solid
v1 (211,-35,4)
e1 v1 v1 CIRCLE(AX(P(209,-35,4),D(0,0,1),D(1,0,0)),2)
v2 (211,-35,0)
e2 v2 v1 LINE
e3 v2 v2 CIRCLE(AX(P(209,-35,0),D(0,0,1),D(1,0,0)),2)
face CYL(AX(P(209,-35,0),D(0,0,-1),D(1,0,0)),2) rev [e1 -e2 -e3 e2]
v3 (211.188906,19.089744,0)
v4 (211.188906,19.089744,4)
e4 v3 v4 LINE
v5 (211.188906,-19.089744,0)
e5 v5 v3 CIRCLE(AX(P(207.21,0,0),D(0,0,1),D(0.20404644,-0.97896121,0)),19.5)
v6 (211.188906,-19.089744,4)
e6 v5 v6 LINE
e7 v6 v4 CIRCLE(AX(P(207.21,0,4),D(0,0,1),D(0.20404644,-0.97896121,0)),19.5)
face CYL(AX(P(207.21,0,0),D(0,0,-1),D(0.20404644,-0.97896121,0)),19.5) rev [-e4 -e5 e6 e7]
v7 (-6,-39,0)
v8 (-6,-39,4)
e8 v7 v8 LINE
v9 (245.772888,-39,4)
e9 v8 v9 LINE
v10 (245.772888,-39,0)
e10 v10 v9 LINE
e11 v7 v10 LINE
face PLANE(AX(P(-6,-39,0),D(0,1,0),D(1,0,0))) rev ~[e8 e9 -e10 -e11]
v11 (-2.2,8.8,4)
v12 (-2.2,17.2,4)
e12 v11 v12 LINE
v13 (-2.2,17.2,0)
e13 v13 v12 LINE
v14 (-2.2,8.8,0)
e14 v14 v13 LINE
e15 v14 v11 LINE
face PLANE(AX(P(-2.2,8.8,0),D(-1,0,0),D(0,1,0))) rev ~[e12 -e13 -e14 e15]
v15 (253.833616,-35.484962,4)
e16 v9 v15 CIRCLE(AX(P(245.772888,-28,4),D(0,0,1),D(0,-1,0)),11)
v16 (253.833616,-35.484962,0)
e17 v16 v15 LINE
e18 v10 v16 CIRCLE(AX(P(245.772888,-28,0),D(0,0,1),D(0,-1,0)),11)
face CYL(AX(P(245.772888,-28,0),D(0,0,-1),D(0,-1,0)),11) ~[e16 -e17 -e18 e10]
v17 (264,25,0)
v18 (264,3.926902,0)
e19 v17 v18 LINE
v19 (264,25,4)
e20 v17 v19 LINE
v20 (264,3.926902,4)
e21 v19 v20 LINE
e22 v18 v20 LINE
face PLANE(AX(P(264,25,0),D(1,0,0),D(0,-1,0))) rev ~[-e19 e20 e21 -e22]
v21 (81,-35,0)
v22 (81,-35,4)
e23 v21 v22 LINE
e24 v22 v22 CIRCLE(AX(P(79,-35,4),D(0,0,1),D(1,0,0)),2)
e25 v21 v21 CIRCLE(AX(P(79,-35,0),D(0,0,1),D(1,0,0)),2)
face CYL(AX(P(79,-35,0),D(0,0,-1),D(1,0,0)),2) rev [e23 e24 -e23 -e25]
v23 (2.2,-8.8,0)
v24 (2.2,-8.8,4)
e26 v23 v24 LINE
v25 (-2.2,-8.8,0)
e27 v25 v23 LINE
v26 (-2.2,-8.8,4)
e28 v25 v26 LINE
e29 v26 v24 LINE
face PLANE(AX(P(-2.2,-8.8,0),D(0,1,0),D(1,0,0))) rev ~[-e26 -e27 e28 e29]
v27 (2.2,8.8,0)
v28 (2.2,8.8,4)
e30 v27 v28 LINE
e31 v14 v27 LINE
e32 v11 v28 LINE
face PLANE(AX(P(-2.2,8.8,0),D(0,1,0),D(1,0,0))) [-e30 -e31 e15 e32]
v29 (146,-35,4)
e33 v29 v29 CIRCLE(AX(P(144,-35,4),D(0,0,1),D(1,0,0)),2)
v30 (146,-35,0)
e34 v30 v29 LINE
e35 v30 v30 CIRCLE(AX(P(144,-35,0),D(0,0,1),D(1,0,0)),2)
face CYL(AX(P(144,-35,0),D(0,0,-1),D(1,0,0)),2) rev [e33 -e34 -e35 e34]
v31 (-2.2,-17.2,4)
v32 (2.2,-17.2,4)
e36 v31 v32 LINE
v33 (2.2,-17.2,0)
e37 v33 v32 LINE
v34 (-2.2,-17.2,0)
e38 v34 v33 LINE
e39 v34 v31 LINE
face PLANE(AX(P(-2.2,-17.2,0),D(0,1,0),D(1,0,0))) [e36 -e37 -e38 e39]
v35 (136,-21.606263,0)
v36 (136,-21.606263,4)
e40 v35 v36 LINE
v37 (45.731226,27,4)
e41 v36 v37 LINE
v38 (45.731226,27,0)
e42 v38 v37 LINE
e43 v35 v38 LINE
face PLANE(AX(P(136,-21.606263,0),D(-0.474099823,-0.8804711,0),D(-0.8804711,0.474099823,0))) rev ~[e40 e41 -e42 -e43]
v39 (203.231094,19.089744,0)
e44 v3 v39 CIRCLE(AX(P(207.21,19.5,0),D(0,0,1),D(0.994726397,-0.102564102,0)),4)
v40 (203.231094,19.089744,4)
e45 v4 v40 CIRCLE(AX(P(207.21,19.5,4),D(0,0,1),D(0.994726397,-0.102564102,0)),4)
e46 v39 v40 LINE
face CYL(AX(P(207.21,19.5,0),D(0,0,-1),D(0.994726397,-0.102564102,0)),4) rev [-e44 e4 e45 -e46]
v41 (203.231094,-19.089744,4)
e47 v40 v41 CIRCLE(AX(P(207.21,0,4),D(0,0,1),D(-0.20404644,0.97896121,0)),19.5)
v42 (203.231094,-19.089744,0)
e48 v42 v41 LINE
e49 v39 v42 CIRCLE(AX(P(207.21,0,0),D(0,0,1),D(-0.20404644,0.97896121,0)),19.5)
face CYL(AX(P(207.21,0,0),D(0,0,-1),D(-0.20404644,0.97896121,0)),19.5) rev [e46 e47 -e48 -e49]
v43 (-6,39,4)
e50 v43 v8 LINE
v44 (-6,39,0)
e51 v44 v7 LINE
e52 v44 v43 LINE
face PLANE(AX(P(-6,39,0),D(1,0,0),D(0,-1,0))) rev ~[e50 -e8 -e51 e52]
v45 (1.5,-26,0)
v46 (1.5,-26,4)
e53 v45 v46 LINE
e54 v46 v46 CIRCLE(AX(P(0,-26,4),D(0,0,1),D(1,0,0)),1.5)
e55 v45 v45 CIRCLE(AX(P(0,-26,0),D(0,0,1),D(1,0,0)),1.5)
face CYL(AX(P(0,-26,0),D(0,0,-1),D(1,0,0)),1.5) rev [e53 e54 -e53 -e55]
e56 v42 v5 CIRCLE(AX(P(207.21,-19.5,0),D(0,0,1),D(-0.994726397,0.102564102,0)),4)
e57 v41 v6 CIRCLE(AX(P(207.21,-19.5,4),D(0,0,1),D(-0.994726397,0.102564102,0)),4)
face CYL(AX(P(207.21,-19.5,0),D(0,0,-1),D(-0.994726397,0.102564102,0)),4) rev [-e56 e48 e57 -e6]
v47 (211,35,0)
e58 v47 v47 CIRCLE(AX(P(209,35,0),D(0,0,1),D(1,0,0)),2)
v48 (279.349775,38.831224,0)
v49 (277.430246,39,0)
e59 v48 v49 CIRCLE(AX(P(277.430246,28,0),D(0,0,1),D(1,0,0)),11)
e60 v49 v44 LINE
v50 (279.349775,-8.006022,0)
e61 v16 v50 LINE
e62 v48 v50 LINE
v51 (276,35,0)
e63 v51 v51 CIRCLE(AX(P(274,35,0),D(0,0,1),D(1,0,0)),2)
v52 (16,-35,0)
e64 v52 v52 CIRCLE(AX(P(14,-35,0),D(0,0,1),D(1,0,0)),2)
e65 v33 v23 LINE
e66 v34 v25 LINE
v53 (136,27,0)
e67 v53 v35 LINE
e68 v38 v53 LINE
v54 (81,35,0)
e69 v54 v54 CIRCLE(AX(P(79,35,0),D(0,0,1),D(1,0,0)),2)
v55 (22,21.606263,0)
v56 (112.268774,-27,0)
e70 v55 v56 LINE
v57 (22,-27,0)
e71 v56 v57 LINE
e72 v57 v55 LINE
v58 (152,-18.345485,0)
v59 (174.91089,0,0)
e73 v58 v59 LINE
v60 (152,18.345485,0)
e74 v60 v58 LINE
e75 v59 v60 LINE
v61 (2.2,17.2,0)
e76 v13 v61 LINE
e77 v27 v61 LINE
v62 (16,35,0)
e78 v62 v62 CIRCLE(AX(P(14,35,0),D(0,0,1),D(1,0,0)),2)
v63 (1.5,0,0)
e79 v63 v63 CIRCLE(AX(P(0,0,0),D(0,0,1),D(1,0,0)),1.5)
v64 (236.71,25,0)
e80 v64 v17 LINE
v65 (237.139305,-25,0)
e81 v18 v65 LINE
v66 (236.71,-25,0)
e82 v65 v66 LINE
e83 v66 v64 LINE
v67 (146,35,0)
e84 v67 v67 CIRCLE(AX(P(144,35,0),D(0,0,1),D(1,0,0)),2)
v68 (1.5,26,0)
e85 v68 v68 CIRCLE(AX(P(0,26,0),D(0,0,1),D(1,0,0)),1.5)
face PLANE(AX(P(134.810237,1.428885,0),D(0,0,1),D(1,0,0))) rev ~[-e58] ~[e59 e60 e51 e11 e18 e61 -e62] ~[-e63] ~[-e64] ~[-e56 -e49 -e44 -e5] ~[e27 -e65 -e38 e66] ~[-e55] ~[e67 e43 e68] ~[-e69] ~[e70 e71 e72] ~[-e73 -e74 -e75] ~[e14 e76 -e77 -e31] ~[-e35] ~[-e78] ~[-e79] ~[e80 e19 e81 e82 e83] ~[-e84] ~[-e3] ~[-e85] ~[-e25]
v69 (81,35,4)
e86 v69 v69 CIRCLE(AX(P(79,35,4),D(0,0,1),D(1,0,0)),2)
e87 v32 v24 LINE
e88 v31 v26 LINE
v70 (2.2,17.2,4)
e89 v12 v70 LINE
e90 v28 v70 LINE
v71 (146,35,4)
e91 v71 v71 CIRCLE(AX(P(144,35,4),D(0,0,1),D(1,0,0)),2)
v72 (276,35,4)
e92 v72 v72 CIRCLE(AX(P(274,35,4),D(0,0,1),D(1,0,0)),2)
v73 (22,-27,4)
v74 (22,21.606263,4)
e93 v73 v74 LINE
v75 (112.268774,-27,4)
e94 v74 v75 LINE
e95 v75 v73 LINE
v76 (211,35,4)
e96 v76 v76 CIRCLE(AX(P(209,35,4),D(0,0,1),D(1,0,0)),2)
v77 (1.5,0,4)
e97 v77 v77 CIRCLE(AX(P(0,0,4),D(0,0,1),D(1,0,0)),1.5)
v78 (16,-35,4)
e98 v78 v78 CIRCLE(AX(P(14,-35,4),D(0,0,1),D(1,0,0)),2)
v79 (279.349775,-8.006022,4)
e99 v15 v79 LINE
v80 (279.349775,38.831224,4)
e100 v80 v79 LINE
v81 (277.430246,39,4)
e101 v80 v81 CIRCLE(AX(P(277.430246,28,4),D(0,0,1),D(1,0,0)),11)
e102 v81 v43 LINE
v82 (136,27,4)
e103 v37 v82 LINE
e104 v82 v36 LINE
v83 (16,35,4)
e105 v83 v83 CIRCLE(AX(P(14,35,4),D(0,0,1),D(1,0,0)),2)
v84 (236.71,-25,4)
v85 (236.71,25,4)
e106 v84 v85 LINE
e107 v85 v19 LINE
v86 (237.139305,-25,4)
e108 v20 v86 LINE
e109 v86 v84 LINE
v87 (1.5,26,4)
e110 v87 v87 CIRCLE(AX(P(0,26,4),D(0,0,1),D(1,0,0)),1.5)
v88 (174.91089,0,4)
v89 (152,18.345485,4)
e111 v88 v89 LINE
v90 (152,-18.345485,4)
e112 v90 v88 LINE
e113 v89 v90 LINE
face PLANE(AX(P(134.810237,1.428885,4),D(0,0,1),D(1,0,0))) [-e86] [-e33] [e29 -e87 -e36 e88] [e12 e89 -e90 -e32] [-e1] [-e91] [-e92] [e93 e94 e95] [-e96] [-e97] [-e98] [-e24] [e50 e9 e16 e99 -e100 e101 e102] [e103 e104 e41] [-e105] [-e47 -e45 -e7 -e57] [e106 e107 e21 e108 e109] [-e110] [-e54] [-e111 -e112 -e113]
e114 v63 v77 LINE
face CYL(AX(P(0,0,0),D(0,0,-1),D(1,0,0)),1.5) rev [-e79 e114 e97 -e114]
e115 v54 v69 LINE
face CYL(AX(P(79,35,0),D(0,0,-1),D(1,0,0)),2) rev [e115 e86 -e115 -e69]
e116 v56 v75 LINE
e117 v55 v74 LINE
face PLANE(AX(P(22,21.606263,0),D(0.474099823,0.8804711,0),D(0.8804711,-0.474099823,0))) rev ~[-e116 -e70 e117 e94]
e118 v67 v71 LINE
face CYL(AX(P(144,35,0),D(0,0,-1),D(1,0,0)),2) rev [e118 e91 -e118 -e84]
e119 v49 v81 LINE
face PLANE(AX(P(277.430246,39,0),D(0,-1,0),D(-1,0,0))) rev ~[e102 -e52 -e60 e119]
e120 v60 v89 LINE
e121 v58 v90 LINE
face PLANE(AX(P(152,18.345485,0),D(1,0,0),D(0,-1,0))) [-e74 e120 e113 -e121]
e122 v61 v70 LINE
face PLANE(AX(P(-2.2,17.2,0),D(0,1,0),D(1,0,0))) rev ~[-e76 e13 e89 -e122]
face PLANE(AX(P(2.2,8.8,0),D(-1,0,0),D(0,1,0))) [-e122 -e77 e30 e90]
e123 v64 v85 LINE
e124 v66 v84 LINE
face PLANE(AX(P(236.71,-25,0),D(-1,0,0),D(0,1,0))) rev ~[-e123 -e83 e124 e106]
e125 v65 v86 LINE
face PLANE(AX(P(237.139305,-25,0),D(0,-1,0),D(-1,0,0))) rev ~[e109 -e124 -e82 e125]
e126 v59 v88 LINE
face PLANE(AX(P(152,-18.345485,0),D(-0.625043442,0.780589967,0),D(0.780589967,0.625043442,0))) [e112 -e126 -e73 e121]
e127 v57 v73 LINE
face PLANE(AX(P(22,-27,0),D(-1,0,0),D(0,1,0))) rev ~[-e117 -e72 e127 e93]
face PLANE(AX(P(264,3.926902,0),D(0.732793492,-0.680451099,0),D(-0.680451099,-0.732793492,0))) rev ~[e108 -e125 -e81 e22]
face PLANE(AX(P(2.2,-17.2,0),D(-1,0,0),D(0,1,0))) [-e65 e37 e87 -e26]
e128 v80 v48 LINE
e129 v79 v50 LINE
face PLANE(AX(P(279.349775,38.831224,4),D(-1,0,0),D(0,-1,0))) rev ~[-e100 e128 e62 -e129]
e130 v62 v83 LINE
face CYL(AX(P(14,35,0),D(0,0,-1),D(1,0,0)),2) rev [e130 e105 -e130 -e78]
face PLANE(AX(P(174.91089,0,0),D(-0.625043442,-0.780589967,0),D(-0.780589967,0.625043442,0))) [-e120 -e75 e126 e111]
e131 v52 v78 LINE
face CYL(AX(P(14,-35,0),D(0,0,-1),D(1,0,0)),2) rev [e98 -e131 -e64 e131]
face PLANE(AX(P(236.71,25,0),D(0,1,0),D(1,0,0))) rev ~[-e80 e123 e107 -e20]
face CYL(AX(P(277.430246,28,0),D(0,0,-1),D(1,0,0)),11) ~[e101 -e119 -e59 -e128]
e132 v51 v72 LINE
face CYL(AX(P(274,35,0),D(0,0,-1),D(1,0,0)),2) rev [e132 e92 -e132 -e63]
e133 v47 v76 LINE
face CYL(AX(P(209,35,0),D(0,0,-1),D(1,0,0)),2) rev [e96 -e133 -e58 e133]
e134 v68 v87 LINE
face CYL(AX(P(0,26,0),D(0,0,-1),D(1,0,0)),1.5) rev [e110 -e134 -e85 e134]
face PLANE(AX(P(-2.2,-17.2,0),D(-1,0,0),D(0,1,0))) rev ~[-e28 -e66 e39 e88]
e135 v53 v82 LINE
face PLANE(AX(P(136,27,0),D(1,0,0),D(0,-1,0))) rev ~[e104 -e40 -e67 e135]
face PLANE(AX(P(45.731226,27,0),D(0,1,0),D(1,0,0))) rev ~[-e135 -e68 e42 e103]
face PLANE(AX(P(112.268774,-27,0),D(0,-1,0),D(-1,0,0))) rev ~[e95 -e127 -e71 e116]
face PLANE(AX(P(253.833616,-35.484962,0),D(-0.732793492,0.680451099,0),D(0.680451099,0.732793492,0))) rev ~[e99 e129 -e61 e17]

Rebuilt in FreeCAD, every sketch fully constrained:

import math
import FreeCAD as App
import Part
import Sketcher

V = App.Vector
Q = App.Units.Quantity


def add_polygon(sketch, points):
    """Adds a closed chain of lines whose ends are joined by coincident constraints."""
    first, n = sketch.GeometryCount, len(points)
    for a, b in zip(points, points[1:] + points[:1]):
        sketch.addGeometry(Part.LineSegment(App.Vector(*a, 0), App.Vector(*b, 0)), False)
    for i in range(n):
        sketch.addConstraint(Sketcher.Constraint("Coincident", first + i, 2, first + (i + 1) % n, 1))

doc = App.newDocument("Part")
body = doc.addObject("PartDesign::Body", "Body")

# Sketch on XY plane
sketch1 = body.newObject("Sketcher::SketchObject", "Sketch")
sketch1.AttachmentSupport = (doc.getObject("XY_Plane"), [""])
sketch1.MapMode = "FlatFace"
sketch1.addGeometry(Part.LineSegment(V(-6, 39, 0), V(-6, -39, 0)), False)  # 0
sketch1.addGeometry(Part.LineSegment(V(-6, -39, 0), V(245.77, -39, 0)), False)  # 1
sketch1.addGeometry(Part.ArcOfCircle(Part.Circle(V(245.77, -28, 0), V(0, 0, 1), 11), math.radians(-90), math.radians(-43)), False)  # 2
sketch1.addGeometry(Part.LineSegment(V(253.83, -35.48, 0), V(285.49, -1.39, 0)), False)  # 3
sketch1.addGeometry(Part.ArcOfCircle(Part.Circle(V(277.43, 6.09, 0), V(0, 0, 1), 11), math.radians(-43), math.radians(0)), False)  # 4
sketch1.addGeometry(Part.LineSegment(V(288.43, 6.09, 0), V(288.43, 28, 0)), False)  # 5
sketch1.addGeometry(Part.ArcOfCircle(Part.Circle(V(277.43, 28, 0), V(0, 0, 1), 11), math.radians(0), math.radians(90)), False)  # 6
sketch1.addGeometry(Part.LineSegment(V(277.43, 39, 0), V(-6, 39, 0)), False)  # 7
sketch1.addGeometry(Part.Circle(V(14, -35, 0), V(0, 0, 1), 2), False)  # 8
sketch1.addGeometry(Part.Circle(V(0, -26, 0), V(0, 0, 1), 1.5), False)  # 9
sketch1.addGeometry(Part.Circle(V(79, -35, 0), V(0, 0, 1), 2), False)  # 10
add_polygon(sketch1, [(2.2, -17.2), (-2.2, -17.2), (-2.2, -8.8), (2.2, -8.8)])  # lines 11-14
add_polygon(sketch1, [(22, 21.61), (112.27, -27), (22, -27)])  # lines 15-17
sketch1.addGeometry(Part.Circle(V(144, -35, 0), V(0, 0, 1), 2), False)  # 18
sketch1.addGeometry(Part.Circle(V(209, -35, 0), V(0, 0, 1), 2), False)  # 19
sketch1.addGeometry(Part.Circle(V(0, 0, 0), V(0, 0, 1), 1.5), False)  # 20
add_polygon(sketch1, [(2.2, 8.8), (-2.2, 8.8), (-2.2, 17.2), (2.2, 17.2)])  # lines 21-24
add_polygon(sketch1, [(136, -21.61), (45.73, 27), (136, 27)])  # lines 25-27
sketch1.addGeometry(Part.Circle(V(0, 26, 0), V(0, 0, 1), 1.5), False)  # 28
sketch1.addGeometry(Part.Circle(V(14, 35, 0), V(0, 0, 1), 2), False)  # 29
sketch1.addGeometry(Part.Circle(V(79, 35, 0), V(0, 0, 1), 2), False)  # 30
add_polygon(sketch1, [(152, -18.35), (152, 18.35), (174.91, 0)])  # lines 31-33
sketch1.addGeometry(Part.ArcOfCircle(Part.Circle(V(207.21, 0, 0), V(0, 0, 1), 19.5), math.radians(102), math.radians(258)), False)  # 34
sketch1.addGeometry(Part.ArcOfCircle(Part.Circle(V(207.21, 19.5, 0), V(0, 0, 1), 4), math.radians(-6), math.radians(186)), False)  # 35
sketch1.addGeometry(Part.ArcOfCircle(Part.Circle(V(207.21, 0, 0), V(0, 0, 1), 19.5), math.radians(-78), math.radians(78)), False)  # 36
sketch1.addGeometry(Part.ArcOfCircle(Part.Circle(V(207.21, -19.5, 0), V(0, 0, 1), 4), math.radians(174), math.radians(366)), False)  # 37
add_polygon(sketch1, [(237.14, -25), (236.71, -25), (236.71, 25), (264, 25), (264, 3.93)])  # lines 38-42
sketch1.addGeometry(Part.Circle(V(144, 35, 0), V(0, 0, 1), 2), False)  # 43
sketch1.addGeometry(Part.Circle(V(209, 35, 0), V(0, 0, 1), 2), False)  # 44
sketch1.addGeometry(Part.Circle(V(274, 35, 0), V(0, 0, 1), 2), False)  # 45
sketch1.addConstraint([
    Sketcher.Constraint("Coincident", 0, 2, 1, 1),
    Sketcher.Constraint("Tangent", 1, 2, 2, 1),
    Sketcher.Constraint("Tangent", 2, 2, 3, 1),
    Sketcher.Constraint("Tangent", 3, 2, 4, 1),
    Sketcher.Constraint("Tangent", 4, 2, 5, 1),
    Sketcher.Constraint("Tangent", 5, 2, 6, 1),
    Sketcher.Constraint("Tangent", 6, 2, 7, 1),
    Sketcher.Constraint("Coincident", 7, 2, 0, 1),
    Sketcher.Constraint("Coincident", 34, 1, 35, 2),
    Sketcher.Constraint("Coincident", 35, 1, 36, 2),
    Sketcher.Constraint("Coincident", 36, 1, 37, 2),
    Sketcher.Constraint("Coincident", 37, 1, 34, 2),
    Sketcher.Constraint("Vertical", 0),
    Sketcher.Constraint("Horizontal", 1),
    Sketcher.Constraint("Vertical", 5),
    Sketcher.Constraint("Horizontal", 7),
    Sketcher.Constraint("Horizontal", 11),
    Sketcher.Constraint("Vertical", 12),
    Sketcher.Constraint("Horizontal", 13),
    Sketcher.Constraint("Vertical", 14),
    Sketcher.Constraint("Horizontal", 16),
    Sketcher.Constraint("Vertical", 17),
    Sketcher.Constraint("Horizontal", 21),
    Sketcher.Constraint("Vertical", 22),
    Sketcher.Constraint("Horizontal", 23),
    Sketcher.Constraint("Vertical", 24),
    Sketcher.Constraint("Horizontal", 26),
    Sketcher.Constraint("Vertical", 27),
    Sketcher.Constraint("Vertical", 31),
    Sketcher.Constraint("Horizontal", 38),
    Sketcher.Constraint("Vertical", 39),
    Sketcher.Constraint("Horizontal", 40),
    Sketcher.Constraint("Vertical", 41),
    Sketcher.Constraint("Coincident", 20, 3, -1, 1),
    Sketcher.Constraint("Coincident", 36, 3, 34, 3),
    Sketcher.Constraint("Equal", 2, 4),
    Sketcher.Constraint("Equal", 4, 6),
    Sketcher.Constraint("Equal", 8, 10),
    Sketcher.Constraint("Equal", 10, 18),
    Sketcher.Constraint("Equal", 18, 19),
    Sketcher.Constraint("Equal", 9, 20),
    Sketcher.Constraint("Equal", 20, 28),
    Sketcher.Constraint("Equal", 19, 29),
    Sketcher.Constraint("Equal", 29, 30),
    Sketcher.Constraint("Equal", 34, 36),
    Sketcher.Constraint("Equal", 35, 37),
    Sketcher.Constraint("Equal", 30, 43),
    Sketcher.Constraint("Equal", 43, 44),
    Sketcher.Constraint("Equal", 44, 45),
    Sketcher.Constraint("Symmetric", 9, 3, 28, 3, -1, 1),
    Sketcher.Constraint("Symmetric", 13, 2, 21, 2, -1, 1),
    Sketcher.Constraint("Symmetric", 11, 2, 23, 2, -1, 1),
    Sketcher.Constraint("Symmetric", 8, 3, 29, 3, -1),
    Sketcher.Constraint("Symmetric", 10, 3, 30, 3, -1),
    Sketcher.Constraint("Symmetric", 35, 3, 37, 3, -1),
    Sketcher.Constraint("Symmetric", 18, 3, 43, 3, -1),
    Sketcher.Constraint("Symmetric", 19, 3, 44, 3, -1),
    Sketcher.Constraint("PointOnObject", 9, 3, -2),
    Sketcher.Constraint("PointOnObject", 34, 3, -1),
    Sketcher.Constraint("PointOnObject", 32, 2, -1),
    Sketcher.Constraint("Parallel", 15, 25),
    Sketcher.Constraint("Parallel", 3, 42),
    Sketcher.Constraint("Horizontal", 8, 3, 10, 3),
    Sketcher.Constraint("Horizontal", 10, 3, 18, 3),
    Sketcher.Constraint("Horizontal", 18, 3, 19, 3),
    Sketcher.Constraint("Horizontal", 44, 3, 45, 3),
    Sketcher.Constraint("Horizontal", 34, 1, 35, 1),
    Sketcher.Constraint("Vertical", 12, 2, 21, 2),
    Sketcher.Constraint("Equal", 16, 26),
    Sketcher.Constraint("Equal", 32, 33),
    Sketcher.Constraint("Diameter", 8, Q("4 mm")),
    Sketcher.Constraint("Diameter", 9, Q("3 mm")),
    Sketcher.Constraint("Radius", 2, Q("11 mm")),
    Sketcher.Constraint("Radius", 35, Q("4 mm")),
    Sketcher.Constraint("Radius", 34, Q("19.5 mm")),
    Sketcher.Constraint("DistanceY", 0, 2, 0, 1, Q("78 mm")),
    Sketcher.Constraint("DistanceY", 39, 1, 39, 2, Q("50 mm")),
    Sketcher.Constraint("DistanceX", 11, 2, 11, 1, Q("4.4 mm")),
    Sketcher.Constraint("DistanceY", 12, 1, 12, 2, Q("8.4 mm")),
    Sketcher.Constraint("DistanceY", 2, 3, -1, 1, Q("28 mm")),
    Sketcher.Constraint("DistanceX", -1, 1, 8, 3, Q("14 mm")),
    Sketcher.Constraint("DistanceY", 8, 3, -1, 1, Q("35 mm")),
    Sketcher.Constraint("DistanceY", 9, 3, -1, 1, Q("26 mm")),
    Sketcher.Constraint("DistanceX", -1, 1, 10, 3, Q("79 mm")),
    Sketcher.Constraint("DistanceX", -1, 1, 18, 3, Q("144 mm")),
    Sketcher.Constraint("DistanceX", -1, 1, 19, 3, Q("209 mm")),
    Sketcher.Constraint("DistanceX", -1, 1, 45, 3, Q("274 mm")),
    Sketcher.Constraint("DistanceX", 0, 2, -1, 1, Q("6 mm")),
    Sketcher.Constraint("DistanceY", 15, 2, -1, 1, Q("27 mm")),
    Sketcher.Constraint("DistanceX", -1, 1, 16, 2, Q("22 mm")),
    Sketcher.Constraint("DistanceY", -1, 1, 25, 2, Q("27 mm")),
    Sketcher.Constraint("DistanceX", -1, 1, 26, 2, Q("136 mm")),
    Sketcher.Constraint("DistanceX", -1, 1, 31, 2, Q("152 mm")),
    Sketcher.Constraint("DistanceY", 38, 2, -1, 1, Q("25 mm")),
    Sketcher.Constraint("DistanceX", -1, 1, 40, 2, Q("264 mm")),
    Sketcher.Constraint("DistanceY", 37, 3, 35, 3, Q("39 mm")),
    Sketcher.Constraint("DistanceY", 11, 2, 21, 2, Q("26 mm")),
    Sketcher.Constraint("DistanceX", 40, 1, 40, 2, Q("27.29 mm")),
    Sketcher.Constraint("DistanceX", 35, 3, 39, 2, Q("29.5 mm")),
    Sketcher.Constraint("DistanceY", 5, 1, 5, 2, Q("21.90746 mm")),
    Sketcher.Constraint("DistanceY", 31, 1, 31, 2, Q("36.690969 mm")),
    Sketcher.Constraint("DistanceX", 36, 1, 42, 2, Q("25.950399 mm")),
    Sketcher.Constraint("DistanceX", 1, 1, 1, 2, Q("251.772888 mm")),
    Sketcher.Constraint("DistanceX", 7, 2, 7, 1, Q("283.430246 mm")),
    Sketcher.Constraint("DistanceX", 16, 2, 16, 1, Q("90.268774 mm")),
    Sketcher.Constraint("DistanceY", 17, 1, 17, 2, Q("48.606263 mm")),
    Sketcher.Constraint("DistanceX", -1, 1, 32, 2, Q("174.91089 mm")),
])
pad1 = body.newObject("PartDesign::Pad", "Pad")
pad1.Profile = sketch1
pad1.Length = 4

# Sketch on XY plane
sketch2 = body.newObject("Sketcher::SketchObject", "Sketch001")
sketch2.AttachmentSupport = (doc.getObject("XY_Plane"), [""])
sketch2.MapMode = "FlatFace"
sketch2.AttachmentOffset = App.Placement(V(0, 0, 4), App.Rotation())
add_polygon(sketch2, [(279, 39), (279, -8), (316, -9), (310, 44)])  # lines 0-3
sketch2.addConstraint([
    Sketcher.Constraint("Vertical", 0),
    Sketcher.Constraint("Distance", 1, Q("36.52079 mm")),
    Sketcher.Constraint("Distance", 2, Q("53.75855 mm")),
    Sketcher.Constraint("Distance", 3, Q("31.164469 mm")),
    Sketcher.Constraint("DistanceY", 0, 2, 0, 1, Q("46.837246 mm")),
    Sketcher.Constraint("DistanceY", 0, 2, -1, 1, Q("8.006022 mm")),
    Sketcher.Constraint("DistanceX", -1, 1, 2, 2, Q("310.03021 mm")),
    Sketcher.Constraint("DistanceY", 1, 2, 2, 2, Q("53.44228 mm")),
])
pocket1 = body.newObject("PartDesign::Pocket", "Pocket")
pocket1.Profile = sketch2
pocket1.Length = 10

doc.recompute()
